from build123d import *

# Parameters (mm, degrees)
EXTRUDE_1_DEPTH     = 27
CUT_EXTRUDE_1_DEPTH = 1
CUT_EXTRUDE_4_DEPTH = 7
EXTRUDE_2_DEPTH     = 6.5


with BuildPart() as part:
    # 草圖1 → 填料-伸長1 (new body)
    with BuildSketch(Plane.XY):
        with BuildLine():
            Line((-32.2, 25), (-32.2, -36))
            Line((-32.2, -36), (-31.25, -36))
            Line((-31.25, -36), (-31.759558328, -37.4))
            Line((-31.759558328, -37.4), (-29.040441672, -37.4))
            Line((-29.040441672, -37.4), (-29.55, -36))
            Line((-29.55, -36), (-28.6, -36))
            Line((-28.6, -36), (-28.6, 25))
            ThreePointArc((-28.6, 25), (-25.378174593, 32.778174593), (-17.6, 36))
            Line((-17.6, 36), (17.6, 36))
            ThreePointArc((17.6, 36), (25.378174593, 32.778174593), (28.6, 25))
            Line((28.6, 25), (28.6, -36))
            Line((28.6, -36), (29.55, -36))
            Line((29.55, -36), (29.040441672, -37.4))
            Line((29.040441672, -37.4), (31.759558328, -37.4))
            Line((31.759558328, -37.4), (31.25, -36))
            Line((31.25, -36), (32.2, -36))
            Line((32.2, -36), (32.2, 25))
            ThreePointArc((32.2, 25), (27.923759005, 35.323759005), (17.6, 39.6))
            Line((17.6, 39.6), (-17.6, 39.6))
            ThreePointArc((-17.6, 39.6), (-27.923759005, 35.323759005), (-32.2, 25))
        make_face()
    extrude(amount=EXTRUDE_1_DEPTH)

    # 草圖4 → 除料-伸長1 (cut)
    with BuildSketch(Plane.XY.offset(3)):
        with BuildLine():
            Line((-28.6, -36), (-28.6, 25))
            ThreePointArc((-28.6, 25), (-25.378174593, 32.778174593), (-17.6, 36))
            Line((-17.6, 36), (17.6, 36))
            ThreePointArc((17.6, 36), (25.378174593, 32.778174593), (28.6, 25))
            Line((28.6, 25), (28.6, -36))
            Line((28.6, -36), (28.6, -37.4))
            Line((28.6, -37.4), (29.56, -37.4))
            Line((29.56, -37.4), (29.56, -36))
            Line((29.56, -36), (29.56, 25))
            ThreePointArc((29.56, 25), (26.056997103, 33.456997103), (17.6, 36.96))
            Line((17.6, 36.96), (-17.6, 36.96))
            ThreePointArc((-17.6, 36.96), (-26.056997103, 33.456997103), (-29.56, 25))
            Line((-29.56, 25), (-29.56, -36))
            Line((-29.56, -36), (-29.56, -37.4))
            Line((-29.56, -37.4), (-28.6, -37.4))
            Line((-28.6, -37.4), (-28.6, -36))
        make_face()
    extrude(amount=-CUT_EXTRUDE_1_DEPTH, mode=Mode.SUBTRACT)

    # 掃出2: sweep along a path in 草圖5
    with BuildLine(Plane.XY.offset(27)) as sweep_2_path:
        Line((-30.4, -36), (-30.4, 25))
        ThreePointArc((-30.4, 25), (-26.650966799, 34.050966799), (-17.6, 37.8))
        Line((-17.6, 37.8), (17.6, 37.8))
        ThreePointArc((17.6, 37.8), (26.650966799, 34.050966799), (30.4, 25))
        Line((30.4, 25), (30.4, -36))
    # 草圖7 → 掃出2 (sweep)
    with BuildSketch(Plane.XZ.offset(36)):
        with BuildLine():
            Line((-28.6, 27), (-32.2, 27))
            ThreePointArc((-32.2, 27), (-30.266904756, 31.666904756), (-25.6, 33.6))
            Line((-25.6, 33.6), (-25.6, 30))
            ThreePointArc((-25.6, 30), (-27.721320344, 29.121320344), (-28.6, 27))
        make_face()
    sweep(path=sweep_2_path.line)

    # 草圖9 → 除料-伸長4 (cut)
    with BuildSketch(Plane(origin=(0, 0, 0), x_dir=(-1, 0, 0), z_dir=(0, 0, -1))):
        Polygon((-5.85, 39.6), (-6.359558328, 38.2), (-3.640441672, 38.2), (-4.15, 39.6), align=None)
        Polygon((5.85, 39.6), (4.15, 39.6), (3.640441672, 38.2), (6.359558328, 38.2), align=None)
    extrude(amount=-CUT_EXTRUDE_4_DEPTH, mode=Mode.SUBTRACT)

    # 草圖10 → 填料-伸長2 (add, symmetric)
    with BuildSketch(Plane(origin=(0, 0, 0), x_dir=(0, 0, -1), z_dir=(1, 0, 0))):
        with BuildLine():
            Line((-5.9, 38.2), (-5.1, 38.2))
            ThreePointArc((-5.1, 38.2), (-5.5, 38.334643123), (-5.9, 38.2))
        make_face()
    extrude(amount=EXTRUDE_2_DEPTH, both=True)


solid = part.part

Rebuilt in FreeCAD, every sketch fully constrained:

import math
import FreeCAD as App
import Part
import Sketcher

V = App.Vector
Q = App.Units.Quantity

doc = App.newDocument("Part")
params = doc.addObject("Spreadsheet::Sheet", "Params")
for row, (alias, value) in enumerate([
    ("sketch1_radius", "11 mm"),
    ("sketch1_radius2", "14.6 mm"),
    ("sketch1_height", "61 mm"),
    ("sketch1_width", "35.2 mm"),
    ("sketch1_width2", "0.95 mm"),
    ("pad1_length", "27 mm"),
    ("sketch2_radius", "11 mm"),
    ("sketch2_radius2", "11.96 mm"),
    ("sketch2_width", "35.2 mm"),
    ("sketch2_height", "62.4 mm"),
    ("pocket1_length", "1 mm"),
    ("sketch3_radius", "3 mm"),
    ("sketch3_radius2", "6.6 mm"),
    ("sketch4_radius", "12.8 mm"),
    ("sketch4_height", "61 mm"),
    ("sketch4_width", "35.2 mm"),
    ("sketch5_width", "1.7 mm"),
    ("pocket2_length", "7 mm"),
    ("sketch6_height", "0.8 mm"),
    ("pad2_length", "13 mm"),
], start=1):
    params.set(f"A{row}", alias)
    params.set(f"B{row}", "=" + value)
    params.setAlias(f"B{row}", alias)

body = doc.addObject("PartDesign::Body", "Body")

sketch1 = body.newObject("Sketcher::SketchObject", "Sketch")
sketch1.AttachmentSupport = (doc.getObject("XY_Plane"), [""])
sketch1.MapMode = "FlatFace"
sketch1.addGeometry([
    Part.LineSegment(V(-32.2, 25, 0), V(-32.2, -36, 0)),
    Part.LineSegment(V(-32.2, -36, 0), V(-31.2, -36, 0)),
    Part.LineSegment(V(-31.2, -36, 0), V(-31.8, -37.4, 0)),
    Part.LineSegment(V(-31.8, -37.4, 0), V(-29, -37.4, 0)),
    Part.LineSegment(V(-29, -37.4, 0), V(-29.6, -36, 0)),
    Part.LineSegment(V(-29.6, -36, 0), V(-28.6, -36, 0)),
    Part.LineSegment(V(-28.6, -36, 0), V(-28.6, 25, 0)),
    Part.ArcOfCircle(Part.Circle(V(-17.6, 25, 0), V(0, 0, 1), 11), math.radians(90), math.radians(180)),
    Part.LineSegment(V(-17.6, 36, 0), V(17.6, 36, 0)),
    Part.ArcOfCircle(Part.Circle(V(17.6, 25, 0), V(0, 0, 1), 11), math.radians(0), math.radians(90)),
    Part.LineSegment(V(28.6, 25, 0), V(28.6, -36, 0)),
    Part.LineSegment(V(28.6, -36, 0), V(29.6, -36, 0)),
    Part.LineSegment(V(29.6, -36, 0), V(29, -37.4, 0)),
    Part.LineSegment(V(29, -37.4, 0), V(31.8, -37.4, 0)),
    Part.LineSegment(V(31.8, -37.4, 0), V(31.2, -36, 0)),
    Part.LineSegment(V(31.2, -36, 0), V(32.2, -36, 0)),
    Part.LineSegment(V(32.2, -36, 0), V(32.2, 25, 0)),
    Part.ArcOfCircle(Part.Circle(V(17.6, 25, 0), V(0, 0, 1), 14.6), math.radians(0), math.radians(90)),
    Part.LineSegment(V(17.6, 39.6, 0), V(-17.6, 39.6, 0)),
    Part.ArcOfCircle(Part.Circle(V(-17.6, 25, 0), V(0, 0, 1), 14.6), math.radians(90), math.radians(180)),
], False)
sketch1.addConstraint([
    Sketcher.Constraint("Coincident", 0, 2, 1, 1),
    Sketcher.Constraint("Coincident", 1, 2, 2, 1),
    Sketcher.Constraint("Coincident", 2, 2, 3, 1),
    Sketcher.Constraint("Coincident", 3, 2, 4, 1),
    Sketcher.Constraint("Coincident", 4, 2, 5, 1),
    Sketcher.Constraint("Coincident", 5, 2, 6, 1),
    Sketcher.Constraint("Tangent", 6, 2, 7, 2),
    Sketcher.Constraint("Tangent", 7, 1, 8, 1),
    Sketcher.Constraint("Tangent", 8, 2, 9, 2),
    Sketcher.Constraint("Tangent", 9, 1, 10, 1),
    Sketcher.Constraint("Coincident", 10, 2, 11, 1),
    Sketcher.Constraint("Coincident", 11, 2, 12, 1),
    Sketcher.Constraint("Coincident", 12, 2, 13, 1),
    Sketcher.Constraint("Coincident", 13, 2, 14, 1),
    Sketcher.Constraint("Coincident", 14, 2, 15, 1),
    Sketcher.Constraint("Coincident", 15, 2, 16, 1),
    Sketcher.Constraint("Tangent", 16, 2, 17, 1),
    Sketcher.Constraint("Tangent", 17, 2, 18, 1),
    Sketcher.Constraint("Tangent", 18, 2, 19, 1),
    Sketcher.Constraint("Tangent", 19, 2, 0, 1),
    Sketcher.Constraint("Vertical", 0),
    Sketcher.Constraint("Horizontal", 1),
    Sketcher.Constraint("Horizontal", 3),
    Sketcher.Constraint("Horizontal", 5),
    Sketcher.Constraint("Vertical", 6),
    Sketcher.Constraint("Horizontal", 8),
    Sketcher.Constraint("Vertical", 10),
    Sketcher.Constraint("Horizontal", 11),
    Sketcher.Constraint("Horizontal", 13),
    Sketcher.Constraint("Horizontal", 15),
    Sketcher.Constraint("Vertical", 16),
    Sketcher.Constraint("Horizontal", 18),
    Sketcher.Constraint("Coincident", 17, 3, 9, 3),
    Sketcher.Constraint("Coincident", 19, 3, 7, 3),
    Sketcher.Constraint("Equal", 7, 9),
    Sketcher.Constraint("Symmetric", 5, 2, 10, 2, -2),
    Sketcher.Constraint("Symmetric", 3, 2, 12, 2, -2),
    Sketcher.Constraint("Symmetric", 1, 2, 14, 2, -2),
    Sketcher.Constraint("Parallel", 2, 12),
    Sketcher.Constraint("Parallel", 4, 14),
    Sketcher.Constraint("Horizontal", 1, 2, 4, 2),
    Sketcher.Constraint("Equal", 1, 5),
    Sketcher.Constraint("Equal", 5, 11),
    Sketcher.Constraint("Radius", 7, Q("11 mm")),
    Sketcher.Constraint("Radius", 17, Q("14.6 mm")),
    Sketcher.Constraint("DistanceY", 0, 2, 0, 1, Q("61 mm")),
    Sketcher.Constraint("Angle", 2, Q("-110 deg")),
    Sketcher.Constraint("DistanceX", 8, 1, 8, 2, Q("35.2 mm")),
    Sketcher.Constraint("DistanceY", -1, 1, 7, 3, Q("25 mm")),
    Sketcher.Constraint("DistanceX", 1, 1, 1, 2, Q("0.95 mm")),
    Sketcher.Constraint("DistanceY", 2, 2, -1, 1, Q("37.4 mm")),
])
sketch1.setExpression("Constraints[43]", "Params.sketch1_radius")
sketch1.setExpression("Constraints[44]", "Params.sketch1_radius2")
sketch1.setExpression("Constraints[45]", "Params.sketch1_height")
sketch1.setExpression("Constraints[47]", "Params.sketch1_width")
sketch1.setExpression("Constraints[49]", "Params.sketch1_width2")
pad1 = body.newObject("PartDesign::Pad", "Pad")
pad1.Profile = sketch1
pad1.setExpression("Length", "Params.pad1_length")

sketch2 = body.newObject("Sketcher::SketchObject", "Sketch001")
sketch2.AttachmentSupport = (doc.getObject("XY_Plane"), [""])
sketch2.MapMode = "FlatFace"
sketch2.AttachmentOffset = App.Placement(V(0, 0, 3), App.Rotation())
sketch2.addGeometry([
    Part.ArcOfCircle(Part.Circle(V(-17.6, 25, 0), V(0, 0, 1), 11), math.radians(90), math.radians(180)),
    Part.LineSegment(V(-17.6, 36, 0), V(17.6, 36, 0)),
    Part.ArcOfCircle(Part.Circle(V(17.6, 25, 0), V(0, 0, 1), 11), math.radians(0), math.radians(90)),
    Part.LineSegment(V(28.6, 25, 0), V(28.6, -37.4, 0)),
    Part.LineSegment(V(28.6, -37.4, 0), V(29.6, -37.4, 0)),
    Part.LineSegment(V(29.6, -37.4, 0), V(29.6, 25, 0)),
    Part.ArcOfCircle(Part.Circle(V(17.6, 25, 0), V(0, 0, 1), 12), math.radians(0), math.radians(90)),
    Part.LineSegment(V(17.6, 37, 0), V(-17.6, 37, 0)),
    Part.ArcOfCircle(Part.Circle(V(-17.6, 25, 0), V(0, 0, 1), 12), math.radians(90), math.radians(180)),
    Part.LineSegment(V(-29.6, 25, 0), V(-29.6, -37.4, 0)),
    Part.LineSegment(V(-29.6, -37.4, 0), V(-28.6, -37.4, 0)),
    Part.LineSegment(V(-28.6, -37.4, 0), V(-28.6, 25, 0)),
], False)
sketch2.addConstraint([
    Sketcher.Constraint("Tangent", 0, 1, 1, 1),
    Sketcher.Constraint("Tangent", 1, 2, 2, 2),
    Sketcher.Constraint("Tangent", 2, 1, 3, 1),
    Sketcher.Constraint("Coincident", 3, 2, 4, 1),
    Sketcher.Constraint("Coincident", 4, 2, 5, 1),
    Sketcher.Constraint("Tangent", 5, 2, 6, 1),
    Sketcher.Constraint("Tangent", 6, 2, 7, 1),
    Sketcher.Constraint("Tangent", 7, 2, 8, 1),
    Sketcher.Constraint("Tangent", 8, 2, 9, 1),
    Sketcher.Constraint("Coincident", 9, 2, 10, 1),
    Sketcher.Constraint("Coincident", 10, 2, 11, 1),
    Sketcher.Constraint("Tangent", 11, 2, 0, 2),
    Sketcher.Constraint("Horizontal", 1),
    Sketcher.Constraint("Vertical", 3),
    Sketcher.Constraint("Horizontal", 4),
    Sketcher.Constraint("Vertical", 5),
    Sketcher.Constraint("Horizontal", 7),
    Sketcher.Constraint("Vertical", 9),
    Sketcher.Constraint("Horizontal", 10),
    Sketcher.Constraint("Vertical", 11),
    Sketcher.Constraint("Coincident", 6, 3, 2, 3),
    Sketcher.Constraint("Coincident", 8, 3, 0, 3),
    Sketcher.Constraint("Equal", 0, 2),
    Sketcher.Constraint("Symmetric", 4, 2, 9, 2, -2),
    Sketcher.Constraint("Radius", 0, Q("11 mm")),
    Sketcher.Constraint("Radius", 6, Q("11.96 mm")),
    Sketcher.Constraint("DistanceX", 1, 1, 1, 2, Q("35.2 mm")),
    Sketcher.Constraint("DistanceY", 3, 2, 3, 1, Q("62.4 mm")),
    Sketcher.Constraint("DistanceY", -1, 1, 0, 3, Q("25 mm")),
])
sketch2.setExpression("Constraints[24]", "Params.sketch2_radius")
sketch2.setExpression("Constraints[25]", "Params.sketch2_radius2")
sketch2.setExpression("Constraints[26]", "Params.sketch2_width")
sketch2.setExpression("Constraints[27]", "Params.sketch2_height")
pocket1 = body.newObject("PartDesign::Pocket", "Pocket")
pocket1.Profile = sketch2
pocket1.setExpression("Length", "Params.pocket1_length")

sketch3 = body.newObject("Sketcher::SketchObject", "Sketch002")
sketch3.AttachmentSupport = (doc.getObject("XZ_Plane"), [""])
sketch3.MapMode = "FlatFace"
sketch3.AttachmentOffset = App.Placement(V(0, 0, 36), App.Rotation())
sketch3.addGeometry([
    Part.LineSegment(V(-32.2, 27, 0), V(-28.6, 27, 0)),
    Part.ArcOfCircle(Part.Circle(V(-25.6, 27, 0), V(0, 0, 1), 3), math.radians(90), math.radians(180)),
    Part.LineSegment(V(-25.6, 30, 0), V(-25.6, 33.6, 0)),
    Part.ArcOfCircle(Part.Circle(V(-25.6, 27, 0), V(0, 0, 1), 6.6), math.radians(90), math.radians(180)),
], False)
sketch3.addConstraint([
    Sketcher.Constraint("Coincident", 0, 2, 1, 2),
    Sketcher.Constraint("Coincident", 1, 1, 2, 1),
    Sketcher.Constraint("Coincident", 2, 2, 3, 1),
    Sketcher.Constraint("Coincident", 3, 2, 0, 1),
    Sketcher.Constraint("Horizontal", 0),
    Sketcher.Constraint("Vertical", 2),
    Sketcher.Constraint("Coincident", 3, 3, 1, 3),
    Sketcher.Constraint("Horizontal", 3, 3, 0, 2),
    Sketcher.Constraint("Vertical", 3, 3, 1, 1),
    Sketcher.Constraint("Radius", 1, Q("3 mm")),
    Sketcher.Constraint("Radius", 3, Q("6.6 mm")),
    Sketcher.Constraint("DistanceY", -1, 1, 1, 3, Q("27 mm")),
    Sketcher.Constraint("DistanceX", 1, 3, -1, 1, Q("25.6 mm")),
])
sketch3.setExpression("Constraints[9]", "Params.sketch3_radius")
sketch3.setExpression("Constraints[10]", "Params.sketch3_radius2")

sketch4 = body.newObject("Sketcher::SketchObject", "Sketch003")
sketch4.AttachmentSupport = (doc.getObject("XY_Plane"), [""])
sketch4.MapMode = "FlatFace"
sketch4.AttachmentOffset = App.Placement(V(0, 0, 27), App.Rotation())
sketch4.addGeometry([
    Part.LineSegment(V(-30, -36, 0), V(-30, 25, 0)),
    Part.ArcOfCircle(Part.Circle(V(-18, 25, 0), V(0, 0, 1), 13), math.radians(90), math.radians(180)),
    Part.LineSegment(V(-18, 38, 0), V(18, 38, 0)),
    Part.ArcOfCircle(Part.Circle(V(18, 25, 0), V(0, 0, 1), 13), math.radians(0), math.radians(90)),
    Part.LineSegment(V(30, 25, 0), V(30, -36, 0)),
], False)
sketch4.addConstraint([
    Sketcher.Constraint("Tangent", 0, 2, 1, 2),
    Sketcher.Constraint("Tangent", 1, 1, 2, 1),
    Sketcher.Constraint("Tangent", 2, 2, 3, 2),
    Sketcher.Constraint("Tangent", 3, 1, 4, 1),
    Sketcher.Constraint("Vertical", 0),
    Sketcher.Constraint("Horizontal", 2),
    Sketcher.Constraint("Vertical", 4),
    Sketcher.Constraint("Equal", 1, 3),
    Sketcher.Constraint("Symmetric", 0, 1, 4, 2, -2),
    Sketcher.Constraint("Radius", 1, Q("12.8 mm")),
    Sketcher.Constraint("DistanceY", 0, 1, 0, 2, Q("61 mm")),
    Sketcher.Constraint("DistanceX", 2, 1, 2, 2, Q("35.2 mm")),
    Sketcher.Constraint("DistanceY", -1, 1, 1, 3, Q("25 mm")),
])
sketch4.setExpression("Constraints[9]", "Params.sketch4_radius")
sketch4.setExpression("Constraints[10]", "Params.sketch4_height")
sketch4.setExpression("Constraints[11]", "Params.sketch4_width")
doc.recompute()

additivepipe = body.newObject("PartDesign::AdditivePipe", "AdditivePipe")
additivepipe.Profile = sketch3
additivepipe.Spine = (sketch4, ["Edge1", "Edge2", "Edge3", "Edge4", "Edge5"])

sketch5 = body.newObject("Sketcher::SketchObject", "Sketch004")
sketch5.AttachmentSupport = (doc.getObject("XY_Plane"), [""])
sketch5.MapMode = "FlatFace"
sketch5.addGeometry([
    Part.LineSegment(V(5.8, 39.6, 0), V(6.4, 38.2, 0)),
    Part.LineSegment(V(6.4, 38.2, 0), V(3.6, 38.2, 0)),
    Part.LineSegment(V(3.6, 38.2, 0), V(4.2, 39.6, 0)),
    Part.LineSegment(V(4.2, 39.6, 0), V(5.8, 39.6, 0)),
    Part.LineSegment(V(-5.8, 39.6, 0), V(-4.2, 39.6, 0)),
    Part.LineSegment(V(-4.2, 39.6, 0), V(-3.6, 38.2, 0)),
    Part.LineSegment(V(-3.6, 38.2, 0), V(-6.4, 38.2, 0)),
    Part.LineSegment(V(-6.4, 38.2, 0), V(-5.8, 39.6, 0)),
], False)
sketch5.addConstraint([
    Sketcher.Constraint("Coincident", 0, 2, 1, 1),
    Sketcher.Constraint("Coincident", 1, 2, 2, 1),
    Sketcher.Constraint("Coincident", 2, 2, 3, 1),
    Sketcher.Constraint("Coincident", 3, 2, 0, 1),
    Sketcher.Constraint("Coincident", 4, 2, 5, 1),
    Sketcher.Constraint("Coincident", 5, 2, 6, 1),
    Sketcher.Constraint("Coincident", 6, 2, 7, 1),
    Sketcher.Constraint("Coincident", 7, 2, 4, 1),
    Sketcher.Constraint("Horizontal", 1),
    Sketcher.Constraint("Horizontal", 3),
    Sketcher.Constraint("Horizontal", 4),
    Sketcher.Constraint("Horizontal", 6),
    Sketcher.Constraint("Symmetric", 2, 2, 4, 2, -2),
    Sketcher.Constraint("Symmetric", 1, 2, 5, 2, -2),
    Sketcher.Constraint("Parallel", 0, 5),
    Sketcher.Constraint("Parallel", 2, 7),
    Sketcher.Constraint("Equal", 3, 4),
    Sketcher.Constraint("Angle", 0, Q("-70 deg")),
    Sketcher.Constraint("DistanceX", 3, 1, 3, 2, Q("1.7 mm")),
    Sketcher.Constraint("DistanceX", 4, 2, 3, 2, Q("10 mm")),
    Sketcher.Constraint("DistanceY", -1, 1, 0, 2, Q("38.2 mm")),
    Sketcher.Constraint("DistanceY", -1, 1, 2, 2, Q("39.6 mm")),
])
sketch5.setExpression("Constraints[18]", "Params.sketch5_width")
pocket2 = body.newObject("PartDesign::Pocket", "Pocket001")
pocket2.Profile = sketch5
pocket2.setExpression("Length", "Params.pocket2_length")
pocket2.Reversed = True

sketch6 = body.newObject("Sketcher::SketchObject", "Sketch005")
sketch6.AttachmentSupport = (doc.getObject("YZ_Plane"), [""])
sketch6.MapMode = "FlatFace"
sketch6.addGeometry([
    Part.LineSegment(V(38.2, 5.9, 0), V(38.2, 5.1, 0)),
    Part.ArcOfCircle(Part.Circle(V(37.7, 5.5, 0), V(0, 0, 1), 0.7), math.radians(-37), math.radians(37)),
], False)
sketch6.addConstraint([
    Sketcher.Constraint("Coincident", 0, 1, 1, 2),
    Sketcher.Constraint("Coincident", 1, 1, 0, 2),
    Sketcher.Constraint("Vertical", 0),
    Sketcher.Constraint("DistanceY", 0, 2, 0, 1, Q("0.8 mm")),
    Sketcher.Constraint("DistanceY", -1, 1, 1, 3, Q("5.5 mm")),
    Sketcher.Constraint("DistanceX", -1, 1, 0, 1, Q("38.2 mm")),
    Sketcher.Constraint("Radius", 1, Q("0.661485 mm")),
])
sketch6.setExpression("Constraints[3]", "Params.sketch6_height")
pad2 = body.newObject("PartDesign::Pad", "Pad001")
pad2.Profile = sketch6
pad2.setExpression("Length", "Params.pad2_length")
pad2.Midplane = True

doc.recompute()
